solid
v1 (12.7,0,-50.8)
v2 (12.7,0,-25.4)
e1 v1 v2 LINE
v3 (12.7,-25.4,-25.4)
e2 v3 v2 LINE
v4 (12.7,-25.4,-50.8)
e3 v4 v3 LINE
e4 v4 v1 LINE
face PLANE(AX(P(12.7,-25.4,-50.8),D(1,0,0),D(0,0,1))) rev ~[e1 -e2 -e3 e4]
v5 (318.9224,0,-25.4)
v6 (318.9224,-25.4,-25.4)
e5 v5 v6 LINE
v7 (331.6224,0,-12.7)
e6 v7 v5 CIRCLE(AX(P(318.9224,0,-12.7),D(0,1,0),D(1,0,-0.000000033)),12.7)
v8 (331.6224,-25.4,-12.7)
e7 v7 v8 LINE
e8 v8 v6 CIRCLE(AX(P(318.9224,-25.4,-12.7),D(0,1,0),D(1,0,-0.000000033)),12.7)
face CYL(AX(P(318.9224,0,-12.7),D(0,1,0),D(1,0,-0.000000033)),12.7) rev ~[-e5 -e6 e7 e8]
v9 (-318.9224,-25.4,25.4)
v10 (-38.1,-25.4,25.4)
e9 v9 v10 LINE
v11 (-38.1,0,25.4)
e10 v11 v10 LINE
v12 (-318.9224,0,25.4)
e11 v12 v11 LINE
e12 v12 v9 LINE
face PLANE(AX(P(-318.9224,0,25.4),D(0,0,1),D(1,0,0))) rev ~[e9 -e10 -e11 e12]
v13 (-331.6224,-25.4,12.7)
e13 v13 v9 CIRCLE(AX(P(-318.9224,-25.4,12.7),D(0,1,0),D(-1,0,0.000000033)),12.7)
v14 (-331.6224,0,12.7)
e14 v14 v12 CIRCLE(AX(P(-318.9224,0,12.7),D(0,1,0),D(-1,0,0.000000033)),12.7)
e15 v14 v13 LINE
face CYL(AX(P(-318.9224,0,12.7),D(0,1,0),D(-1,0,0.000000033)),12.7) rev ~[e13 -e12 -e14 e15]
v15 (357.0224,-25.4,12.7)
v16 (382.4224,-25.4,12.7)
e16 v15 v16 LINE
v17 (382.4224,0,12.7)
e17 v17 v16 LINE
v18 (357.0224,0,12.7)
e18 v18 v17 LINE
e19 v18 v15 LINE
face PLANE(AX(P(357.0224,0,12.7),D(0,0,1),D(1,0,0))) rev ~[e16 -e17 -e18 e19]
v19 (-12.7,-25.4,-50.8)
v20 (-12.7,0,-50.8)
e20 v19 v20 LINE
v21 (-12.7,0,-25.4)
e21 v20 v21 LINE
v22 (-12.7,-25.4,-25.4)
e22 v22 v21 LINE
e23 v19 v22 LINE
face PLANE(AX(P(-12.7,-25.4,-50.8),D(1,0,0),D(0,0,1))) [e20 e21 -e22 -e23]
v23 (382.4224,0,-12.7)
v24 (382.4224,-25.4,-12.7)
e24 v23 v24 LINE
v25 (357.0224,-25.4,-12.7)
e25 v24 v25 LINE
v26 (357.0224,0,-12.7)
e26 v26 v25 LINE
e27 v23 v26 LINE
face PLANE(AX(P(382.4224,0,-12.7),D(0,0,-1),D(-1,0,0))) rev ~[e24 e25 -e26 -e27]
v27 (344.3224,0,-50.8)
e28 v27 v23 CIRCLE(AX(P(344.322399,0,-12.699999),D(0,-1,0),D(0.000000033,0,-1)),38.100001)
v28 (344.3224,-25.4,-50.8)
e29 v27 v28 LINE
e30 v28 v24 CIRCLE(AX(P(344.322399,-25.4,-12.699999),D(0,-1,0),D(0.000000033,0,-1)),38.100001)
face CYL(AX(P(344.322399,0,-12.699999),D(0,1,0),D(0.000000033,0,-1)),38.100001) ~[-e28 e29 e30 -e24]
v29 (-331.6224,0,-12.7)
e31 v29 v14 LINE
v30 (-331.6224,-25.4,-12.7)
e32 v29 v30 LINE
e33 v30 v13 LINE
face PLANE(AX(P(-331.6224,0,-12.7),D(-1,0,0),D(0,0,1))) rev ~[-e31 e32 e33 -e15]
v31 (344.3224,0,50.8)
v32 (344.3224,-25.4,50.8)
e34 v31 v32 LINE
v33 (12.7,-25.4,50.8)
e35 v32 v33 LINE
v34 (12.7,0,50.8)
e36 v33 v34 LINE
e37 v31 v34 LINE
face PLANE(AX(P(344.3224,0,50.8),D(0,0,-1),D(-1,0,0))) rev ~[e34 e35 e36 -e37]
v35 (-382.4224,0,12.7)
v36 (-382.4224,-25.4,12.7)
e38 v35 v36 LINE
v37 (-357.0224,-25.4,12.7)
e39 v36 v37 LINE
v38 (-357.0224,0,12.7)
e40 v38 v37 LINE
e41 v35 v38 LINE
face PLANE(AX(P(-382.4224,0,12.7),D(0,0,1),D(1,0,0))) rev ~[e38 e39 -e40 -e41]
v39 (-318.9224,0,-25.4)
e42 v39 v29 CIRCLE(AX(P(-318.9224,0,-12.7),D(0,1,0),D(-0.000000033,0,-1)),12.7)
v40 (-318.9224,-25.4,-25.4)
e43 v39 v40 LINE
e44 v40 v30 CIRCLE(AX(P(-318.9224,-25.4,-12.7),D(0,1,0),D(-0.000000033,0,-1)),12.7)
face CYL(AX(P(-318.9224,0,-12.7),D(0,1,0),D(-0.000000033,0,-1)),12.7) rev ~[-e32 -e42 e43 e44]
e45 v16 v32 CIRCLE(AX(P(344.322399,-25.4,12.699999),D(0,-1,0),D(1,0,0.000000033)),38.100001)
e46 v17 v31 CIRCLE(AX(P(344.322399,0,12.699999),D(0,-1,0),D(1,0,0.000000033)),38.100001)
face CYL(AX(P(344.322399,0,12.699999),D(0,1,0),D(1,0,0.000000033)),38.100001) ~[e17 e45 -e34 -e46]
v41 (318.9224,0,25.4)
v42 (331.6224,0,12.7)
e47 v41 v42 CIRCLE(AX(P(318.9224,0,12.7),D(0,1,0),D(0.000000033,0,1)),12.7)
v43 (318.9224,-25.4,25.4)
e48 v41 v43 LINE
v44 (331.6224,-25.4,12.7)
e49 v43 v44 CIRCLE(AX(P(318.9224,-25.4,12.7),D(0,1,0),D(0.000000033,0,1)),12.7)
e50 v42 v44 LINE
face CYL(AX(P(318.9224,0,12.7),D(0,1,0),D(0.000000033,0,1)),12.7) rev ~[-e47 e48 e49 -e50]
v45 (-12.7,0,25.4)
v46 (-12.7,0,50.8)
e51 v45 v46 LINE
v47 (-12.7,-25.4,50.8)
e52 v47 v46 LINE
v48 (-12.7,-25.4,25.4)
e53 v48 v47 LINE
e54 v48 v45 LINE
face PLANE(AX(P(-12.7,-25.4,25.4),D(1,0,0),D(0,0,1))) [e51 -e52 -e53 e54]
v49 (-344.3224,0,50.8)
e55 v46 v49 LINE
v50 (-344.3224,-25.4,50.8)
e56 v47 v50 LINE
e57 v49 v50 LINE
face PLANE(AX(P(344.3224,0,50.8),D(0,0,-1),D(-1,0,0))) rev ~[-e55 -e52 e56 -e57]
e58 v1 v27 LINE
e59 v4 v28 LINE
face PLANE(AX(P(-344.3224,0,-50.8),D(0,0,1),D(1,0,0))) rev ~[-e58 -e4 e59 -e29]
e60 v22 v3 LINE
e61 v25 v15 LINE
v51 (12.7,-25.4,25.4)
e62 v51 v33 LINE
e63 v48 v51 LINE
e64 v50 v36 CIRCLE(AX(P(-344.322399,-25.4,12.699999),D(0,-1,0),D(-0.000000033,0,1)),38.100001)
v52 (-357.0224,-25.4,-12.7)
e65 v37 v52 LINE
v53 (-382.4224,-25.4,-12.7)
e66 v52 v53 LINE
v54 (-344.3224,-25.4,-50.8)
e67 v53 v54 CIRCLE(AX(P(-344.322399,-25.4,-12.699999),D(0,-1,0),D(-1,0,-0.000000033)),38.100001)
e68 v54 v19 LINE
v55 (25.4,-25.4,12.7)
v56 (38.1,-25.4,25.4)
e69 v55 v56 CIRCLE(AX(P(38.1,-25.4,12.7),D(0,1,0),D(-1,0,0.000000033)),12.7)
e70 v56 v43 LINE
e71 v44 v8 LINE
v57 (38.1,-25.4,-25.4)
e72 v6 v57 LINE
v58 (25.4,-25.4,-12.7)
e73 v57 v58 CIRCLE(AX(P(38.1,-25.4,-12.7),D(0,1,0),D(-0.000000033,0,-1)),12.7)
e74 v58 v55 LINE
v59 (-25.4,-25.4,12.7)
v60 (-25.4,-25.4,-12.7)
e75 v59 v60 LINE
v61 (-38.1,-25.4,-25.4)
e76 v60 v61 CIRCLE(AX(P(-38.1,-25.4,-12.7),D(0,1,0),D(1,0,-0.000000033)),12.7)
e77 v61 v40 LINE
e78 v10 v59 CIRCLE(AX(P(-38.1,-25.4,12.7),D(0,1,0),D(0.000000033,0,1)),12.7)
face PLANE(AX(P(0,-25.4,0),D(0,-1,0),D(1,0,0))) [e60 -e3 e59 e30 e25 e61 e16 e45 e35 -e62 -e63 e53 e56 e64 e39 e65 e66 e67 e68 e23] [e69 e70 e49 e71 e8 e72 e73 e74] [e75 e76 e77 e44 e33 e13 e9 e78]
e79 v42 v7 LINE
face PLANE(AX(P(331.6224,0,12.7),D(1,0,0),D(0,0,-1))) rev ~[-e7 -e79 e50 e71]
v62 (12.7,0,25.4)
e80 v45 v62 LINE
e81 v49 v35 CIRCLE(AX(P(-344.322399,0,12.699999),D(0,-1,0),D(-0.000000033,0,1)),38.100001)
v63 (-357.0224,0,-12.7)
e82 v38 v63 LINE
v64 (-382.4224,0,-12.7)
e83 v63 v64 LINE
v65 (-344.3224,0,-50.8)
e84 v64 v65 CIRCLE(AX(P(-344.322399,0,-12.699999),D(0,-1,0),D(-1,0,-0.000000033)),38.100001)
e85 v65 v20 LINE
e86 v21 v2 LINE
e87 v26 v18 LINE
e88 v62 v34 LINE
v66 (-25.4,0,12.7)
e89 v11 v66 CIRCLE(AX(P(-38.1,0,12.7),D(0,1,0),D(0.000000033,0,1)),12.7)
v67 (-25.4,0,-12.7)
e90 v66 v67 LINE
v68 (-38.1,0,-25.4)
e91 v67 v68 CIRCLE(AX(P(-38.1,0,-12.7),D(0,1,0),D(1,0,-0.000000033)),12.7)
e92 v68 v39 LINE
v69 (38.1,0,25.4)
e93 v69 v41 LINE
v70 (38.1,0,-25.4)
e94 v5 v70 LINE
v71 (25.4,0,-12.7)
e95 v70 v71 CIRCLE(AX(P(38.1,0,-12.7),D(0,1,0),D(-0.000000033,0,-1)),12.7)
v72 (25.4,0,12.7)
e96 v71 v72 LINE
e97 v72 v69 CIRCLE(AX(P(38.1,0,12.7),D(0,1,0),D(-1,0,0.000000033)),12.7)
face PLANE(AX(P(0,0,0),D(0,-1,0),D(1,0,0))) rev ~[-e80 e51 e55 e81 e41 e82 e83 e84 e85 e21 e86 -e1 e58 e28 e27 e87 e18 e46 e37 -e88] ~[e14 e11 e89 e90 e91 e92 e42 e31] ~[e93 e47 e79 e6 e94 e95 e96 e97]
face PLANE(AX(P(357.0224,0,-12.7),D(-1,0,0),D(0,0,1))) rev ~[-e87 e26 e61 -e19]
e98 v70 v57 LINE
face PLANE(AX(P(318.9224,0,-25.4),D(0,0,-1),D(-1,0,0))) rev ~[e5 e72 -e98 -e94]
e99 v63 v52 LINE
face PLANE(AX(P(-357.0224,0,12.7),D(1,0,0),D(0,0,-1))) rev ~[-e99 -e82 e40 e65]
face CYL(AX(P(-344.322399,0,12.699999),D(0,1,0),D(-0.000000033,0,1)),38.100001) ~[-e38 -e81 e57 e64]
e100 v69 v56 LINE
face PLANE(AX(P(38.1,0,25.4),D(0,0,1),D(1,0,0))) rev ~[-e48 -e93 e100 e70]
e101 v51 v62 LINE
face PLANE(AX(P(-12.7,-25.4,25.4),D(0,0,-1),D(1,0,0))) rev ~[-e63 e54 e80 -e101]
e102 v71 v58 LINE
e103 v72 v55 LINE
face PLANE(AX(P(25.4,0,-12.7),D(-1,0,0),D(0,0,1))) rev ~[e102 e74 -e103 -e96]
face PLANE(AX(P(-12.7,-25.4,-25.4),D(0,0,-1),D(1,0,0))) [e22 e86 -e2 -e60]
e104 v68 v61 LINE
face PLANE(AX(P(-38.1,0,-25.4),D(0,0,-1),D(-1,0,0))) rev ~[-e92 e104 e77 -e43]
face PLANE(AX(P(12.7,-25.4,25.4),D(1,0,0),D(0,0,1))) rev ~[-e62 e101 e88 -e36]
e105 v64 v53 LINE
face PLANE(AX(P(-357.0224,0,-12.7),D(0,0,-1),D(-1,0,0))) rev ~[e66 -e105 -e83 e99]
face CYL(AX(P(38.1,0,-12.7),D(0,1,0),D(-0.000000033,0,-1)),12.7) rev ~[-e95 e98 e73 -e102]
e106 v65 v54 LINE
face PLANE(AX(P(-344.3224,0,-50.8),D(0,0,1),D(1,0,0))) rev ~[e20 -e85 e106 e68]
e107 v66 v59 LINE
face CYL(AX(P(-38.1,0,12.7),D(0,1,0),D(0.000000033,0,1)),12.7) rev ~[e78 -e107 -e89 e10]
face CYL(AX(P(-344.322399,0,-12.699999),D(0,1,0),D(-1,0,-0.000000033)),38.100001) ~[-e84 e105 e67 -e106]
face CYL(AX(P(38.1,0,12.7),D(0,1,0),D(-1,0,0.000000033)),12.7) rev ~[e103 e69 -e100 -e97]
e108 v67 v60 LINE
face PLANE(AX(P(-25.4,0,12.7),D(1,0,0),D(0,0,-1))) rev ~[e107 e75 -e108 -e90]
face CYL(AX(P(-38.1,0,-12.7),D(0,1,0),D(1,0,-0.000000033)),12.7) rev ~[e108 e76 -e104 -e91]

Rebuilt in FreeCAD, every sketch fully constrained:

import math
import FreeCAD as App
import Part
import Sketcher
from FreeCAD import Vector
Q = App.Units.Quantity


def add_polygon(sketch, points):
    """Adds a closed chain of lines whose ends are joined by coincident constraints."""
    first, n = sketch.GeometryCount, len(points)
    for a, b in zip(points, points[1:] + points[:1]):
        sketch.addGeometry(Part.LineSegment(App.Vector(*a, 0), App.Vector(*b, 0)), False)
    for i in range(n):
        sketch.addConstraint(Sketcher.Constraint("Coincident", first + i, 2, first + (i + 1) % n, 1))

doc = App.newDocument("Part")
body = doc.addObject("PartDesign::Body", "Body")

# Sketch on XZ plane
sketch1 = body.newObject("Sketcher::SketchObject", "Sketch")
sketch1.AttachmentSupport = (doc.getObject("XZ_Plane"), [""])
sketch1.MapMode = "FlatFace"
sketch1.addGeometry([
    Part.LineSegment(Vector(-382.4224, 12.7, 0), Vector(-357.0224, 12.7, 0)),  # 0
    Part.LineSegment(Vector(-357.0224, 12.7, 0), Vector(-357.0224, -12.7, 0)),  # 1
    Part.LineSegment(Vector(-357.0224, -12.7, 0), Vector(-382.4224, -12.7, 0)),  # 2
    Part.ArcOfCircle(Part.Circle(Vector(-344.322399, -12.699999, 0), Vector(0, 0, 1), 38.100001), math.radians(-179.999998), math.radians(-90.000002)),  # 3
    Part.LineSegment(Vector(-344.3224, -50.8, 0), Vector(344.3224, -50.8, 0)),  # 4
    Part.ArcOfCircle(Part.Circle(Vector(344.322399, -12.699999, 0), Vector(0, 0, 1), 38.100001), math.radians(-89.999998), math.radians(-0.000002)),  # 5
    Part.LineSegment(Vector(382.4224, -12.7, 0), Vector(357.0224, -12.7, 0)),  # 6
    Part.LineSegment(Vector(357.0224, -12.7, 0), Vector(357.0224, 12.7, 0)),  # 7
    Part.LineSegment(Vector(357.0224, 12.7, 0), Vector(382.4224, 12.7, 0)),  # 8
    Part.ArcOfCircle(Part.Circle(Vector(344.322399, 12.699999, 0), Vector(0, 0, 1), 38.100001), math.radians(0.000002), math.radians(89.999998)),  # 9
    Part.LineSegment(Vector(344.3224, 50.8, 0), Vector(-344.3224, 50.8, 0)),  # 10
    Part.ArcOfCircle(Part.Circle(Vector(-344.322399, 12.699999, 0), Vector(0, 0, 1), 38.100001), math.radians(90.000002), math.radians(179.999998)),  # 11
    Part.LineSegment(Vector(331.6224, 12.7, 0), Vector(331.6224, -12.7, 0)),  # 12
    Part.ArcOfCircle(Part.Circle(Vector(318.9224, -12.7, 0), Vector(0, 0, 1), 12.7), math.radians(-89.999998), math.radians(-0.000002)),  # 13
    Part.LineSegment(Vector(318.9224, -25.4, 0), Vector(38.1, -25.4, 0)),  # 14
    Part.ArcOfCircle(Part.Circle(Vector(38.1, -12.7, 0), Vector(0, 0, 1), 12.7), math.radians(-179.999998), math.radians(-90.000002)),  # 15
    Part.LineSegment(Vector(25.4, -12.7, 0), Vector(25.4, 12.7, 0)),  # 16
    Part.ArcOfCircle(Part.Circle(Vector(38.1, 12.7, 0), Vector(0, 0, 1), 12.7), math.radians(90.000002), math.radians(179.999998)),  # 17
    Part.LineSegment(Vector(38.1, 25.4, 0), Vector(318.9224, 25.4, 0)),  # 18
    Part.ArcOfCircle(Part.Circle(Vector(318.9224, 12.7, 0), Vector(0, 0, 1), 12.7), math.radians(0.000002), math.radians(89.999998)),  # 19
    Part.ArcOfCircle(Part.Circle(Vector(-38.1, -12.7, 0), Vector(0, 0, 1), 12.7), math.radians(-89.999998), math.radians(-0.000002)),  # 20
    Part.LineSegment(Vector(-38.1, -25.4, 0), Vector(-318.9224, -25.4, 0)),  # 21
    Part.ArcOfCircle(Part.Circle(Vector(-318.9224, -12.7, 0), Vector(0, 0, 1), 12.7), math.radians(-179.999998), math.radians(-90.000002)),  # 22
    Part.LineSegment(Vector(-331.6224, -12.7, 0), Vector(-331.6224, 12.7, 0)),  # 23
    Part.ArcOfCircle(Part.Circle(Vector(-318.9224, 12.7, 0), Vector(0, 0, 1), 12.7), math.radians(90.000002), math.radians(179.999998)),  # 24
    Part.LineSegment(Vector(-318.9224, 25.4, 0), Vector(-38.1, 25.4, 0)),  # 25
    Part.ArcOfCircle(Part.Circle(Vector(-38.1, 12.7, 0), Vector(0, 0, 1), 12.7), math.radians(0.000002), math.radians(89.999998)),  # 26
    Part.LineSegment(Vector(-25.4, 12.7, 0), Vector(-25.4, -12.7, 0)),  # 27
], False)
sketch1.addConstraint([
    Sketcher.Constraint("Coincident", 0, 2, 1, 1),
    Sketcher.Constraint("Coincident", 1, 2, 2, 1),
    Sketcher.Constraint("Coincident", 2, 2, 3, 1),
    Sketcher.Constraint("Tangent", 3, 2, 4, 1),
    Sketcher.Constraint("Tangent", 4, 2, 5, 1),
    Sketcher.Constraint("Coincident", 5, 2, 6, 1),
    Sketcher.Constraint("Coincident", 6, 2, 7, 1),
    Sketcher.Constraint("Coincident", 7, 2, 8, 1),
    Sketcher.Constraint("Coincident", 8, 2, 9, 1),
    Sketcher.Constraint("Tangent", 9, 2, 10, 1),
    Sketcher.Constraint("Tangent", 10, 2, 11, 1),
    Sketcher.Constraint("Coincident", 11, 2, 0, 1),
    Sketcher.Constraint("Tangent", 12, 2, 13, 2),
    Sketcher.Constraint("Tangent", 13, 1, 14, 1),
    Sketcher.Constraint("Tangent", 14, 2, 15, 2),
    Sketcher.Constraint("Tangent", 15, 1, 16, 1),
    Sketcher.Constraint("Tangent", 16, 2, 17, 2),
    Sketcher.Constraint("Tangent", 17, 1, 18, 1),
    Sketcher.Constraint("Tangent", 18, 2, 19, 2),
    Sketcher.Constraint("Tangent", 19, 1, 12, 1),
    Sketcher.Constraint("Tangent", 20, 1, 21, 1),
    Sketcher.Constraint("Tangent", 21, 2, 22, 2),
    Sketcher.Constraint("Tangent", 22, 1, 23, 1),
    Sketcher.Constraint("Tangent", 23, 2, 24, 2),
    Sketcher.Constraint("Tangent", 24, 1, 25, 1),
    Sketcher.Constraint("Tangent", 25, 2, 26, 2),
    Sketcher.Constraint("Tangent", 26, 1, 27, 1),
    Sketcher.Constraint("Tangent", 27, 2, 20, 2),
    Sketcher.Constraint("Horizontal", 0),
    Sketcher.Constraint("Vertical", 1),
    Sketcher.Constraint("Horizontal", 2),
    Sketcher.Constraint("Horizontal", 4),
    Sketcher.Constraint("Horizontal", 6),
    Sketcher.Constraint("Vertical", 7),
    Sketcher.Constraint("Horizontal", 8),
    Sketcher.Constraint("Horizontal", 10),
    Sketcher.Constraint("Vertical", 12),
    Sketcher.Constraint("Horizontal", 14),
    Sketcher.Constraint("Vertical", 16),
    Sketcher.Constraint("Horizontal", 18),
    Sketcher.Constraint("Horizontal", 21),
    Sketcher.Constraint("Vertical", 23),
    Sketcher.Constraint("Horizontal", 25),
    Sketcher.Constraint("Vertical", 27),
    Sketcher.Constraint("Equal", 3, 5),
    Sketcher.Constraint("Equal", 5, 9),
    Sketcher.Constraint("Equal", 9, 11),
    Sketcher.Constraint("Equal", 13, 15),
    Sketcher.Constraint("Equal", 15, 17),
    Sketcher.Constraint("Equal", 17, 19),
    Sketcher.Constraint("Equal", 19, 20),
    Sketcher.Constraint("Equal", 20, 22),
    Sketcher.Constraint("Equal", 22, 24),
    Sketcher.Constraint("Equal", 24, 26),
    Sketcher.Constraint("Symmetric", 3, 3, 9, 3, -1, 1),
    Sketcher.Constraint("Symmetric", 17, 3, 20, 3, -1, 1),
    Sketcher.Constraint("Symmetric", 13, 3, 24, 3, -1, 1),
    Sketcher.Constraint("Symmetric", 0, 2, 6, 2, -1, 1),
    Sketcher.Constraint("Symmetric", 2, 2, 5, 2, -2),
    Sketcher.Constraint("Symmetric", 8, 2, 11, 2, -2),
    Sketcher.Constraint("Horizontal", 5, 3, 13, 3),
    Sketcher.Constraint("Horizontal", 11, 3, 17, 3),
    Sketcher.Constraint("Horizontal", 26, 3, 0, 2),
    Sketcher.Constraint("Equal", 8, 1),
    Sketcher.Constraint("Radius", 3, Q("1.5 in")),
    Sketcher.Constraint("Radius", 13, Q("0.5 in")),
    Sketcher.Constraint("DistanceX", 0, 1, 0, 2, Q("1 in")),
    Sketcher.Constraint("DistanceX", -1, 1, 15, 1, Q("1 in")),
    Sketcher.Constraint("DistanceX", 13, 3, 5, 3, Q("1 in")),
    Sketcher.Constraint("DistanceX", 4, 1, 4, 2, Q("27.112 in")),
])
pad1 = body.newObject("PartDesign::Pad", "Pad")
pad1.Profile = sketch1
pad1.Length = Q("1 in")

# Sketch on XZ plane
sketch2 = body.newObject("Sketcher::SketchObject", "Sketch001")
sketch2.AttachmentSupport = (doc.getObject("XZ_Plane"), [""])
sketch2.MapMode = "FlatFace"
sketch2.AttachmentOffset = App.Placement(Vector(0, 0, 1 * 25.4), App.Rotation())
add_polygon(sketch2, [(-12.7, 50.8), (-12.7, 25.4), (12.7, 25.4), (12.7, 50.8)])  # lines 0-3
add_polygon(sketch2, [(-12.7, -25.4), (-12.7, -50.8), (12.7, -50.8), (12.7, -25.4)])  # lines 4-7
sketch2.addConstraint([
    Sketcher.Constraint("Vertical", 0),
    Sketcher.Constraint("Horizontal", 1),
    Sketcher.Constraint("Vertical", 2),
    Sketcher.Constraint("Horizontal", 3),
    Sketcher.Constraint("Vertical", 4),
    Sketcher.Constraint("Horizontal", 5),
    Sketcher.Constraint("Vertical", 6),
    Sketcher.Constraint("Horizontal", 7),
    Sketcher.Constraint("Symmetric", 2, 2, 4, 2, -1, 1),
    Sketcher.Constraint("Symmetric", 0, 2, 6, 2, -1, 1),
    Sketcher.Constraint("Vertical", 3, 2, 4, 2),
    Sketcher.Constraint("Equal", 7, 0),
    Sketcher.Constraint("DistanceX", 1, 1, 1, 2, Q("1 in")),
    Sketcher.Constraint("DistanceY", -1, 1, 0, 2, Q("1 in")),
])
pocket1 = body.newObject("PartDesign::Pocket", "Pocket")
pocket1.Profile = sketch2
pocket1.Length = Q("1 in")

doc.recompute()
